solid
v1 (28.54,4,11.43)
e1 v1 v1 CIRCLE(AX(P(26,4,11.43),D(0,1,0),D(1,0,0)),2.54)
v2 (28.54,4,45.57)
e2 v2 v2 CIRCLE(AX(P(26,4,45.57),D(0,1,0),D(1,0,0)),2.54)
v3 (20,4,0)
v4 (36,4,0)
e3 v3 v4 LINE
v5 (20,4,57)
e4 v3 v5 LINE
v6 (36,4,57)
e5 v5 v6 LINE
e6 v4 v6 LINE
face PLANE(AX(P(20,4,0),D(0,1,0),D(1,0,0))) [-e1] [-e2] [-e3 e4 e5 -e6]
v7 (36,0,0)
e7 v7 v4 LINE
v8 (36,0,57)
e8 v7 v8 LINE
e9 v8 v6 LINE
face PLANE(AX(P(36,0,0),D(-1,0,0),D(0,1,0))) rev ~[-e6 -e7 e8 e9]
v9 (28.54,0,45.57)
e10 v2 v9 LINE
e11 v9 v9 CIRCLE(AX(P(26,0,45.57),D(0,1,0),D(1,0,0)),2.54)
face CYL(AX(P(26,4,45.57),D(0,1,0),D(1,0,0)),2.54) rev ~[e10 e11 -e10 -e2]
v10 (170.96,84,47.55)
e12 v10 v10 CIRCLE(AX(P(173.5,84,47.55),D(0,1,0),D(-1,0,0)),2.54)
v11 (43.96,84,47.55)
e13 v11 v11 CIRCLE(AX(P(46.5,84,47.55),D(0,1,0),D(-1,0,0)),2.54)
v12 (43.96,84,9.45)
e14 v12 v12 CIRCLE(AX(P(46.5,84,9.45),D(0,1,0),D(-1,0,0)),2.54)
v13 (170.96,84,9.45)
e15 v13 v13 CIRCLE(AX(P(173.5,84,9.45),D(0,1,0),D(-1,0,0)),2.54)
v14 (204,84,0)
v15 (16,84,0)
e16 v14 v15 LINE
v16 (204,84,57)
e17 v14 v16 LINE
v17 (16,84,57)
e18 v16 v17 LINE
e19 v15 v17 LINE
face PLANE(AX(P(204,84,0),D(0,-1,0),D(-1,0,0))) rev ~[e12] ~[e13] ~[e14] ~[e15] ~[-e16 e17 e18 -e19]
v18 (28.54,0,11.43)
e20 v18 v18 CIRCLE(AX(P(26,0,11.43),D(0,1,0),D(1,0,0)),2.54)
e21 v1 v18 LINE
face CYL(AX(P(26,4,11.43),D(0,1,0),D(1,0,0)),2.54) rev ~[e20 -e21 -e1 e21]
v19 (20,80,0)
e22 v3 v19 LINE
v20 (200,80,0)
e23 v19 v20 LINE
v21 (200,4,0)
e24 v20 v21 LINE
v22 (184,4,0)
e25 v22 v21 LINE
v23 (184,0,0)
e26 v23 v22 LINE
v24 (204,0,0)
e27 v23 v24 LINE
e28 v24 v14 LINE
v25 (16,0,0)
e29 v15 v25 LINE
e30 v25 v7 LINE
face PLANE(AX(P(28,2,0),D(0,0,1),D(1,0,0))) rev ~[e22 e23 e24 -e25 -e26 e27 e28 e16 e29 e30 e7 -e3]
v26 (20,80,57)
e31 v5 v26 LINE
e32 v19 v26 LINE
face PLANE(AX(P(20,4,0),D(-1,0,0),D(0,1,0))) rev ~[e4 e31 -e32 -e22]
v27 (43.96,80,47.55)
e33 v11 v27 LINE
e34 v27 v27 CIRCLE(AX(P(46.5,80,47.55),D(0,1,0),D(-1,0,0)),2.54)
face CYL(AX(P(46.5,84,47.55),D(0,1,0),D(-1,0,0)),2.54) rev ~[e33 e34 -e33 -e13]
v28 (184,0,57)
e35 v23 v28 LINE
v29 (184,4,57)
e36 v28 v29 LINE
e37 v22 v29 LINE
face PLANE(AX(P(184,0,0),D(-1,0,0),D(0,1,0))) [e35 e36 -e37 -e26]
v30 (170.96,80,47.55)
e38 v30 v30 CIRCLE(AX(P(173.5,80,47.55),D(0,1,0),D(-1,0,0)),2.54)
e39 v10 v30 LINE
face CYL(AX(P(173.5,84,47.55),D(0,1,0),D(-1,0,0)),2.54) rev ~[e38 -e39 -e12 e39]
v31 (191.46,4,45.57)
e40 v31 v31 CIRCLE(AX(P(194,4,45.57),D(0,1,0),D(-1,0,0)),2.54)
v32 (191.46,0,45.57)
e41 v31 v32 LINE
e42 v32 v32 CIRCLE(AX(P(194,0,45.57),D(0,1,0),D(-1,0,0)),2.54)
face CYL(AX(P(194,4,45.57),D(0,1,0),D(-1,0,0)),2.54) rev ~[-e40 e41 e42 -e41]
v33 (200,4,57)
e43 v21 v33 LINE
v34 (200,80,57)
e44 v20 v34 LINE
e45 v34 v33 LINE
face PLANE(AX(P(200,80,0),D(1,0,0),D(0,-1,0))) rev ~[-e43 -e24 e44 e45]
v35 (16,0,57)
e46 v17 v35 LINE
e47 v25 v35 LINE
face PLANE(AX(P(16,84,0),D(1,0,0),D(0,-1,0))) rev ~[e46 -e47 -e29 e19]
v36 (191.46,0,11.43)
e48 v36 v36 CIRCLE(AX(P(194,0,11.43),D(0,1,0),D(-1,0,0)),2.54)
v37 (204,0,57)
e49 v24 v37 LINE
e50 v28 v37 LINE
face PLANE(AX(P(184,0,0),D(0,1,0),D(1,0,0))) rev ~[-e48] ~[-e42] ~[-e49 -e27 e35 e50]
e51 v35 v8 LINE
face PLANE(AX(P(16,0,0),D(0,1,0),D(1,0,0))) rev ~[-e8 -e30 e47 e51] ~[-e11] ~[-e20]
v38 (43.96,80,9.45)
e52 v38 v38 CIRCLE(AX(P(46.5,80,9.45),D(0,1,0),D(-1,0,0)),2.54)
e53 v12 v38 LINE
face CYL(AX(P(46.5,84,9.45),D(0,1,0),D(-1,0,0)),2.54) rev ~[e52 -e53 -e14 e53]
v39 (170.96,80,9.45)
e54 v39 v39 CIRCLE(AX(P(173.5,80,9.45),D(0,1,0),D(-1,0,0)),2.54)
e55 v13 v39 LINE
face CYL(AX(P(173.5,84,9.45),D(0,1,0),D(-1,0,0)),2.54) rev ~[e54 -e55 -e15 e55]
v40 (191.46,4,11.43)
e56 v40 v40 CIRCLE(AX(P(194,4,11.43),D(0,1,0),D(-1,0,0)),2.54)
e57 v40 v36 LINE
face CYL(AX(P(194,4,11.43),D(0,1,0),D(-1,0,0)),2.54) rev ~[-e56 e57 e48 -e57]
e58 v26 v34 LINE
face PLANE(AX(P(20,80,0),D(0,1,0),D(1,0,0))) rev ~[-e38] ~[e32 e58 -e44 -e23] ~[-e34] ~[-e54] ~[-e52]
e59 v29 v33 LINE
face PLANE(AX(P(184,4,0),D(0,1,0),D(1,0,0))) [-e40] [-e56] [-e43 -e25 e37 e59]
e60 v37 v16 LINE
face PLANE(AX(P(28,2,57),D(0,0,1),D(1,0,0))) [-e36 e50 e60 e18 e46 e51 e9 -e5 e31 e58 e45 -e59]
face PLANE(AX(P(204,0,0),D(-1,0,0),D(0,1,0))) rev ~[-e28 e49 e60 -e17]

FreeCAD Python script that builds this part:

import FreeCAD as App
import Part
import Sketcher

V = App.Vector

doc = App.newDocument("Part")
params = doc.addObject("Spreadsheet::Sheet", "Params")
for row, (alias, value) in enumerate([
    ("sketch1_width", "16 mm"),
    ("sketch1_width2", "180 mm"),
    ("sketch1_width3", "20 mm"),
    ("sketch1_height", "4 mm"),
    ("sketch1_height2", "76 mm"),
    ("pad1_length", "57 mm"),
    ("sketch2_diameter", "5.08 mm"),
    ("sketch3_diameter", "5.08 mm"),
], start=1):
    params.set(f"A{row}", alias)
    params.set(f"B{row}", "=" + value)
    params.setAlias(f"B{row}", alias)

body = doc.addObject("PartDesign::Body", "Body")

# Sketch on XY plane
sketch1 = body.newObject("Sketcher::SketchObject", "Sketch")
sketch1.AttachmentSupport = (doc.getObject("XY_Plane"), [""])
sketch1.MapMode = "FlatFace"
sketch1.addGeometry([
    Part.LineSegment(V(36, 0, 0), V(36, 4, 0)),  # 0
    Part.LineSegment(V(36, 4, 0), V(20, 4, 0)),  # 1
    Part.LineSegment(V(20, 4, 0), V(20, 80, 0)),  # 2
    Part.LineSegment(V(20, 80, 0), V(200, 80, 0)),  # 3
    Part.LineSegment(V(200, 80, 0), V(200, 4, 0)),  # 4
    Part.LineSegment(V(200, 4, 0), V(184, 4, 0)),  # 5
    Part.LineSegment(V(184, 4, 0), V(184, 0, 0)),  # 6
    Part.LineSegment(V(184, 0, 0), V(204, 0, 0)),  # 7
    Part.LineSegment(V(204, 0, 0), V(204, 84, 0)),  # 8
    Part.LineSegment(V(204, 84, 0), V(16, 84, 0)),  # 9
    Part.LineSegment(V(16, 84, 0), V(16, 0, 0)),  # 10
    Part.LineSegment(V(16, 0, 0), V(36, 0, 0)),  # 11
], False)
sketch1.addConstraint([
    Sketcher.Constraint("Coincident", 0, 2, 1, 1),
    Sketcher.Constraint("Coincident", 1, 2, 2, 1),
    Sketcher.Constraint("Coincident", 2, 2, 3, 1),
    Sketcher.Constraint("Coincident", 3, 2, 4, 1),
    Sketcher.Constraint("Coincident", 4, 2, 5, 1),
    Sketcher.Constraint("Coincident", 5, 2, 6, 1),
    Sketcher.Constraint("Coincident", 6, 2, 7, 1),
    Sketcher.Constraint("Coincident", 7, 2, 8, 1),
    Sketcher.Constraint("Coincident", 8, 2, 9, 1),
    Sketcher.Constraint("Coincident", 9, 2, 10, 1),
    Sketcher.Constraint("Coincident", 10, 2, 11, 1),
    Sketcher.Constraint("Coincident", 11, 2, 0, 1),
    Sketcher.Constraint("Vertical", 0),
    Sketcher.Constraint("Horizontal", 1),
    Sketcher.Constraint("Vertical", 2),
    Sketcher.Constraint("Horizontal", 3),
    Sketcher.Constraint("Vertical", 4),
    Sketcher.Constraint("Horizontal", 5),
    Sketcher.Constraint("Vertical", 6),
    Sketcher.Constraint("Horizontal", 7),
    Sketcher.Constraint("Vertical", 8),
    Sketcher.Constraint("Horizontal", 9),
    Sketcher.Constraint("Vertical", 10),
    Sketcher.Constraint("Horizontal", 11),
    Sketcher.Constraint("PointOnObject", 6, 2, -1),
    Sketcher.Constraint("PointOnObject", 10, 2, -1),
    Sketcher.Constraint("Horizontal", 1, 2, 4, 2),
    Sketcher.Constraint("Equal", 1, 5),
    Sketcher.Constraint("Equal", 7, 11),
    Sketcher.Constraint("DistanceX", 1, 2, 1, 1, 16.0),
    Sketcher.Constraint("DistanceX", 3, 1, 3, 2, 180.0),
    Sketcher.Constraint("DistanceX", 7, 1, 7, 2, 20.0),
    Sketcher.Constraint("DistanceY", 0, 1, 0, 2, 4.0),
    Sketcher.Constraint("DistanceY", 2, 1, 2, 2, 76.0),
    Sketcher.Constraint("DistanceY", 8, 1, 8, 2, 84.0),
    Sketcher.Constraint("DistanceX", -1, 1, 0, 2, 36.0),
])
sketch1.setExpression("Constraints[29]", "Params.sketch1_width")
sketch1.setExpression("Constraints[30]", "Params.sketch1_width2")
sketch1.setExpression("Constraints[31]", "Params.sketch1_width3")
sketch1.setExpression("Constraints[32]", "Params.sketch1_height")
sketch1.setExpression("Constraints[33]", "Params.sketch1_height2")
pad1 = body.newObject("PartDesign::Pad", "Pad")
pad1.Profile = sketch1
pad1.setExpression("Length", "Params.pad1_length")

# Sketch on XZ plane
sketch2 = body.newObject("Sketcher::SketchObject", "Sketch001")
sketch2.AttachmentSupport = (doc.getObject("XZ_Plane"), [""])
sketch2.MapMode = "FlatFace"
sketch2.AttachmentOffset = App.Placement(V(0, 0, -4), App.Rotation())
sketch2.addGeometry([
    Part.Circle(V(26, 11.4, 0), V(0, 0, 1), 2.5),
    Part.Circle(V(26, 45.6, 0), V(0, 0, 1), 2.5),
    Part.Circle(V(194, 11.4, 0), V(0, 0, 1), 2.5),
    Part.Circle(V(194, 45.6, 0), V(0, 0, 1), 2.5),
], False)
sketch2.addConstraint([
    Sketcher.Constraint("Equal", 0, 1),
    Sketcher.Constraint("Equal", 1, 2),
    Sketcher.Constraint("Equal", 2, 3),
    Sketcher.Constraint("Horizontal", 0, 3, 2, 3),
    Sketcher.Constraint("Horizontal", 1, 3, 3, 3),
    Sketcher.Constraint("Vertical", 0, 3, 1, 3),
    Sketcher.Constraint("Vertical", 2, 3, 3, 3),
    Sketcher.Constraint("Diameter", 0, 5.08),
    Sketcher.Constraint("DistanceX", -1, 1, 0, 3, 26.0),
    Sketcher.Constraint("DistanceX", -1, 1, 2, 3, 194.0),
    Sketcher.Constraint("DistanceY", -1, 1, 0, 3, 11.43),
    Sketcher.Constraint("DistanceY", -1, 1, 1, 3, 45.57),
])
sketch2.setExpression("Constraints[7]", "Params.sketch2_diameter")
pocket1 = body.newObject("PartDesign::Pocket", "Pocket")
pocket1.Profile = sketch2
pocket1.Type = "ThroughAll"
pocket1.Reversed = True

# Sketch on XZ plane
sketch3 = body.newObject("Sketcher::SketchObject", "Sketch002")
sketch3.AttachmentSupport = (doc.getObject("XZ_Plane"), [""])
sketch3.MapMode = "FlatFace"
sketch3.AttachmentOffset = App.Placement(V(0, 0, -84), App.Rotation())
sketch3.addGeometry([
    Part.Circle(V(173.5, 47.5, 0), V(0, 0, 1), 2.5),
    Part.Circle(V(173.5, 9.4, 0), V(0, 0, 1), 2.5),
    Part.Circle(V(46.5, 9.4, 0), V(0, 0, 1), 2.5),
    Part.Circle(V(46.5, 47.5, 0), V(0, 0, 1), 2.5),
], False)
sketch3.addConstraint([
    Sketcher.Constraint("Equal", 0, 1),
    Sketcher.Constraint("Equal", 1, 2),
    Sketcher.Constraint("Equal", 2, 3),
    Sketcher.Constraint("Horizontal", 1, 3, 2, 3),
    Sketcher.Constraint("Horizontal", 0, 3, 3, 3),
    Sketcher.Constraint("Vertical", 0, 3, 1, 3),
    Sketcher.Constraint("Vertical", 2, 3, 3, 3),
    Sketcher.Constraint("Diameter", 0, 5.08),
    Sketcher.Constraint("DistanceX", 2, 3, 1, 3, 127.0),
    Sketcher.Constraint("DistanceX", -1, 1, 0, 3, 173.5),
    Sketcher.Constraint("DistanceY", 1, 3, 0, 3, 38.1),
    Sketcher.Constraint("DistanceY", -1, 1, 0, 3, 47.55),
])
sketch3.setExpression("Constraints[7]", "Params.sketch3_diameter")
pocket2 = body.newObject("PartDesign::Pocket", "Pocket001")
pocket2.Profile = sketch3
pocket2.Type = "ThroughAll"
pocket2.Reversed = True

doc.recompute()
